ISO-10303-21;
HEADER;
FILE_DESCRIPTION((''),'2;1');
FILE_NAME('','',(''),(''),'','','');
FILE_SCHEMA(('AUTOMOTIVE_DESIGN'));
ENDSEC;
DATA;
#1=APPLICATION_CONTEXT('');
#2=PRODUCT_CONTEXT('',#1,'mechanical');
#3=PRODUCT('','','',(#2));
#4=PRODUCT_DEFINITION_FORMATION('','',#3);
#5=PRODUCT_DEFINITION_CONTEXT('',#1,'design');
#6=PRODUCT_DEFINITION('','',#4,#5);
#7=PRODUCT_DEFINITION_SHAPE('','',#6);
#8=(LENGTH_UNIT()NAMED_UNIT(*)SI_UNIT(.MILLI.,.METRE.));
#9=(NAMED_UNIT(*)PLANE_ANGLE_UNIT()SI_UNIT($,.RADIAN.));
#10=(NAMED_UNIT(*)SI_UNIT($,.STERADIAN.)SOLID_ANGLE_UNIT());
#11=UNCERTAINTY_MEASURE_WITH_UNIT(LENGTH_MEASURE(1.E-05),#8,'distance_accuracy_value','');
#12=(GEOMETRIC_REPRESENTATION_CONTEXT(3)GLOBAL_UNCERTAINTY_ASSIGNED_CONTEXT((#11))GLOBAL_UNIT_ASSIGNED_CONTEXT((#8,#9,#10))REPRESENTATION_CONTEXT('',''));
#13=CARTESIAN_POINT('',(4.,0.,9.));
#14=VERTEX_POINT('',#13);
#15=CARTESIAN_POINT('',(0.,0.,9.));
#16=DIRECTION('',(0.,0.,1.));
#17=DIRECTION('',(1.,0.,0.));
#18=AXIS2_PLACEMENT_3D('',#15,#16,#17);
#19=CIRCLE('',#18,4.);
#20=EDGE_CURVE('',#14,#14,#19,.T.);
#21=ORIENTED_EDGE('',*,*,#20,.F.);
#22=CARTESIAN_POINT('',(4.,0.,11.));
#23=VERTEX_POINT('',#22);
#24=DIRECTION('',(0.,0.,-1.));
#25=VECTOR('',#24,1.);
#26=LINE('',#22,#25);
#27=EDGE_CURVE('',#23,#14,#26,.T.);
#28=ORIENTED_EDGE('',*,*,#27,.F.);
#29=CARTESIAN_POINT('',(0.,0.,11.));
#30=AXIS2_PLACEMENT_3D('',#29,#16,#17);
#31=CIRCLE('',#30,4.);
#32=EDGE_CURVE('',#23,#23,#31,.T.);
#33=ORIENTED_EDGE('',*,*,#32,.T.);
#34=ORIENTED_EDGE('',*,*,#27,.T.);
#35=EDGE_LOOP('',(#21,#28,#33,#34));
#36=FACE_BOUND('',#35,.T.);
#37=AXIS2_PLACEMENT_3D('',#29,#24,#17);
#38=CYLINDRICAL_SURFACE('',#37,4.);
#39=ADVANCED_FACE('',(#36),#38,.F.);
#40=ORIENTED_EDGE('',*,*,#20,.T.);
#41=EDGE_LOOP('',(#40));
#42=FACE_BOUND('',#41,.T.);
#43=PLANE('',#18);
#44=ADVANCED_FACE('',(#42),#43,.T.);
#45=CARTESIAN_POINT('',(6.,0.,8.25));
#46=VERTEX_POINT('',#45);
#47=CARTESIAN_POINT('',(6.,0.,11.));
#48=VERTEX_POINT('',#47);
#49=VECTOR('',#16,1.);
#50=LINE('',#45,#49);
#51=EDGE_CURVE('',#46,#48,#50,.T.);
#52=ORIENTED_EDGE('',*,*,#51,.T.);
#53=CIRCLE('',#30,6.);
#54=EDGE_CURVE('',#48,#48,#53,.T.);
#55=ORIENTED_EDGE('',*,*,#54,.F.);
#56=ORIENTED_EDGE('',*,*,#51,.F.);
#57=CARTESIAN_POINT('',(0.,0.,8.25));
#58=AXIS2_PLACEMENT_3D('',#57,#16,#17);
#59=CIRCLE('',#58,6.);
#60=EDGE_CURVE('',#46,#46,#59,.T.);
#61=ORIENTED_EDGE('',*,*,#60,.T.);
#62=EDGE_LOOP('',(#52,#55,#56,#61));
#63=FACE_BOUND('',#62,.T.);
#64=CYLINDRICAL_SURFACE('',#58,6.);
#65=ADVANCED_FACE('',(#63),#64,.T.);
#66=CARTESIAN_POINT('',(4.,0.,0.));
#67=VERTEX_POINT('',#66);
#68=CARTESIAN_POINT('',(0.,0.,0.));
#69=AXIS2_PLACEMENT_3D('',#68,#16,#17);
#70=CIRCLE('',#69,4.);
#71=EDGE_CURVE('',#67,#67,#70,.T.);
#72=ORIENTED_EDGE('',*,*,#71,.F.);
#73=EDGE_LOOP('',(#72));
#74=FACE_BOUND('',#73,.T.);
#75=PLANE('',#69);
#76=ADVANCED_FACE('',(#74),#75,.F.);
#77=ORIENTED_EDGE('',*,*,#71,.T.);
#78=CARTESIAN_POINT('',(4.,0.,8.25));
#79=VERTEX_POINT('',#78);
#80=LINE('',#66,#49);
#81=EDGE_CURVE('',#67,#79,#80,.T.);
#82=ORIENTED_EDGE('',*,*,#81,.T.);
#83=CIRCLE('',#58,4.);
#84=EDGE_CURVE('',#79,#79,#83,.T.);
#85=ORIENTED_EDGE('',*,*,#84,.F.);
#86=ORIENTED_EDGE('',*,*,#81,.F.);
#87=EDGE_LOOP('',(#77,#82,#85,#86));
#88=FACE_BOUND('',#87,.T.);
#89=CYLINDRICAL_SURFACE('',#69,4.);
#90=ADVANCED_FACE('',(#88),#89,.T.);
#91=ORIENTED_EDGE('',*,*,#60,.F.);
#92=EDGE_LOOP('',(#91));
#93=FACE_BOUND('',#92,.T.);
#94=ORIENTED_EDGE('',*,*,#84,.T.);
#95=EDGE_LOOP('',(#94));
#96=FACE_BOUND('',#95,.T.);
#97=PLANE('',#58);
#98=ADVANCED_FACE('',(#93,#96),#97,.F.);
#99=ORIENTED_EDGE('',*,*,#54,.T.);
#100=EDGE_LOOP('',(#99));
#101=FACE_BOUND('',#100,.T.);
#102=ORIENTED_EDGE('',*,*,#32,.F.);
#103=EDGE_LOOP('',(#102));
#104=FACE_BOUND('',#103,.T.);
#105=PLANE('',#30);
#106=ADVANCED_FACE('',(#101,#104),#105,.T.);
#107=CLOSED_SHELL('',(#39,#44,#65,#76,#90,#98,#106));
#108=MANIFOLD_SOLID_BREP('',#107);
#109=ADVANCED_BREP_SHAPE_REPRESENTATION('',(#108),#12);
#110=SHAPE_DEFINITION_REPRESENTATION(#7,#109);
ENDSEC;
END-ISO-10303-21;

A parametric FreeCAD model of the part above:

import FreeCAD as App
import Part
import Sketcher

V = App.Vector
Q = App.Units.Quantity

doc = App.newDocument("Part")
body = doc.addObject("PartDesign::Body", "Body")

# Sketch on XZ plane
sketch1 = doc.addObject("Sketcher::SketchObject", "Sketch")
body.addObject(sketch1)
sketch1.AttachmentSupport = (doc.XZ_Plane, [""])
sketch1.MapMode = "FlatFace"
sketch1.addGeometry(Part.LineSegment(V(0, 0, 0), V(4, 0, 0)), False)
sketch1.addGeometry(Part.LineSegment(V(4, 0, 0), V(4, 8.2, 0)), False)
sketch1.addGeometry(Part.LineSegment(V(4, 8.2, 0), V(6, 8.2, 0)), False)
sketch1.addGeometry(Part.LineSegment(V(6, 8.2, 0), V(6, 11, 0)), False)
sketch1.addGeometry(Part.LineSegment(V(6, 11, 0), V(4, 11, 0)), False)
sketch1.addGeometry(Part.LineSegment(V(4, 11, 0), V(4, 9, 0)), False)
sketch1.addGeometry(Part.LineSegment(V(4, 9, 0), V(0, 9, 0)), False)
sketch1.addGeometry(Part.LineSegment(V(0, 9, 0), V(0, 0, 0)), False)
sketch1.addConstraint(Sketcher.Constraint("Coincident", 0, 2, 1, 1))
sketch1.addConstraint(Sketcher.Constraint("Coincident", 1, 2, 2, 1))
sketch1.addConstraint(Sketcher.Constraint("Coincident", 2, 2, 3, 1))
sketch1.addConstraint(Sketcher.Constraint("Coincident", 3, 2, 4, 1))
sketch1.addConstraint(Sketcher.Constraint("Coincident", 4, 2, 5, 1))
sketch1.addConstraint(Sketcher.Constraint("Coincident", 5, 2, 6, 1))
sketch1.addConstraint(Sketcher.Constraint("Coincident", 6, 2, 7, 1))
sketch1.addConstraint(Sketcher.Constraint("Coincident", 7, 2, 0, 1))
sketch1.addConstraint(Sketcher.Constraint("Horizontal", 0))
sketch1.addConstraint(Sketcher.Constraint("Vertical", 1))
sketch1.addConstraint(Sketcher.Constraint("Horizontal", 2))
sketch1.addConstraint(Sketcher.Constraint("Vertical", 3))
sketch1.addConstraint(Sketcher.Constraint("Horizontal", 4))
sketch1.addConstraint(Sketcher.Constraint("Vertical", 5))
sketch1.addConstraint(Sketcher.Constraint("Horizontal", 6))
sketch1.addConstraint(Sketcher.Constraint("Vertical", 7))
sketch1.addConstraint(Sketcher.Constraint("Coincident", 7, 2, -1, 1))
sketch1.addConstraint(Sketcher.Constraint("Vertical", 1, 2, 4, 2))
sketch1.addConstraint(Sketcher.Constraint("Equal", 4, 5))
sketch1.addConstraint(Sketcher.Constraint("DistanceX", 0, 1, 0, 2, Q("4 mm")))
sketch1.addConstraint(Sketcher.Constraint("DistanceX", 2, 1, 2, 2, Q("2 mm")))
sketch1.addConstraint(Sketcher.Constraint("DistanceY", 7, 2, 7, 1, Q("9 mm")))
sketch1.addConstraint(Sketcher.Constraint("DistanceY", 1, 1, 1, 2, Q("8.25 mm")))
revolution = doc.addObject("PartDesign::Revolution", "Revolution")
body.addObject(revolution)
revolution.Profile = sketch1
revolution.ReferenceAxis = (sketch1, ["V_Axis"])
revolution.Angle = 360

doc.recompute()
